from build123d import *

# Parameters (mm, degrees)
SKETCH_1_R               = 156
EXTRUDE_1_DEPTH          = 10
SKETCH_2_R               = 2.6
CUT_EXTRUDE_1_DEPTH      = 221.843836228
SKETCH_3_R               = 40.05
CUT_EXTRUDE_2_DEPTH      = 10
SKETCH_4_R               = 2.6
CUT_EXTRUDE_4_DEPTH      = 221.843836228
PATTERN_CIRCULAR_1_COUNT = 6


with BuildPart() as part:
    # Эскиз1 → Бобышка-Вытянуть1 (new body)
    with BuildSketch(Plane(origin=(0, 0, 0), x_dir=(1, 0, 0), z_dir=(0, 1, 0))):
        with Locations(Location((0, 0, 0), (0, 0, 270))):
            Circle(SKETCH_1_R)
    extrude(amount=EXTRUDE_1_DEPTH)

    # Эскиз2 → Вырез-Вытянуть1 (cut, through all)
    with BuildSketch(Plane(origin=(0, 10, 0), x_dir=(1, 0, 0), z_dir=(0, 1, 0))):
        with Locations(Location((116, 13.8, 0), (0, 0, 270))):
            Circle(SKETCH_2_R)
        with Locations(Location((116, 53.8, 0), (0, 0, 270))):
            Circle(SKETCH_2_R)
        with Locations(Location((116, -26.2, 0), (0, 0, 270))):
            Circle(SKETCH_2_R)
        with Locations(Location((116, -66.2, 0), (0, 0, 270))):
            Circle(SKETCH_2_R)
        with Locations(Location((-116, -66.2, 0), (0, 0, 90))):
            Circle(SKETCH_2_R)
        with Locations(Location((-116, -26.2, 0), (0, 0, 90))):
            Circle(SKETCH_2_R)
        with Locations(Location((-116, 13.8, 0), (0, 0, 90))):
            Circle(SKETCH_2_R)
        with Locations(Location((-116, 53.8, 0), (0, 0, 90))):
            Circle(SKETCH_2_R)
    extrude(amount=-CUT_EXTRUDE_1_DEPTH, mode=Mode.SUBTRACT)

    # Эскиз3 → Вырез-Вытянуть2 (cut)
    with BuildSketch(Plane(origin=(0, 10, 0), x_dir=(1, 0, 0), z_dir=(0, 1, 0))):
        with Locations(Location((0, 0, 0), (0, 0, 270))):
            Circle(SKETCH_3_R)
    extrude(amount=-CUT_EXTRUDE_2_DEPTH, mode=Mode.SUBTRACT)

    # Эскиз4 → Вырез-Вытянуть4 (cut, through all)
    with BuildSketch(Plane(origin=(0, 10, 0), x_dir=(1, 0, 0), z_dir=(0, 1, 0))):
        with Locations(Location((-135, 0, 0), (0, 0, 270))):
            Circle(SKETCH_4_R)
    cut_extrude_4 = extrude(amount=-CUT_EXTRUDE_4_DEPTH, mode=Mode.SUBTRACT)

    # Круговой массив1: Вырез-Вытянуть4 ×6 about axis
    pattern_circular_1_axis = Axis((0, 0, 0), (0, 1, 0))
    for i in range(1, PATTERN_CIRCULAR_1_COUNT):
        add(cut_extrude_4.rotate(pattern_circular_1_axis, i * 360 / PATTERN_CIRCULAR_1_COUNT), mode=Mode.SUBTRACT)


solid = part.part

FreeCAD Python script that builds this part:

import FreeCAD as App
import Part
import Sketcher
from FreeCAD import Vector
Q = App.Units.Quantity

doc = App.newDocument("Part")
body = doc.addObject("PartDesign::Body", "Body")

sketch1 = doc.addObject("Sketcher::SketchObject", "Sketch")
body.addObject(sketch1)
sketch1.AttachmentSupport = (doc.XZ_Plane, [""])
sketch1.MapMode = "FlatFace"
sketch1.addGeometry(Part.Circle(Vector(0, 0, 0), Vector(0, 0, 1), 156), False)
sketch1.addConstraint(Sketcher.Constraint("Coincident", 0, 3, -1, 1))
sketch1.addConstraint(Sketcher.Constraint("Diameter", 0, Q("312 mm")))
pad1 = doc.addObject("PartDesign::Pad", "Pad")
body.addObject(pad1)
pad1.Profile = sketch1
pad1.Length = 10
pad1.Reversed = True

sketch2 = doc.addObject("Sketcher::SketchObject", "Sketch001")
body.addObject(sketch2)
sketch2.AttachmentSupport = (doc.XZ_Plane, [""])
sketch2.MapMode = "FlatFace"
sketch2.AttachmentOffset = App.Placement(Vector(0, 0, -10), App.Rotation())
sketch2.addGeometry(Part.Circle(Vector(116, -13.8, 0), Vector(0, 0, 1), 2.6), False)
sketch2.addGeometry(Part.Circle(Vector(116, -53.8, 0), Vector(0, 0, 1), 2.6), False)
sketch2.addGeometry(Part.Circle(Vector(116, 26.2, 0), Vector(0, 0, 1), 2.6), False)
sketch2.addGeometry(Part.Circle(Vector(116, 66.2, 0), Vector(0, 0, 1), 2.6), False)
sketch2.addGeometry(Part.Circle(Vector(-116, 66.2, 0), Vector(0, 0, 1), 2.6), False)
sketch2.addGeometry(Part.Circle(Vector(-116, 26.2, 0), Vector(0, 0, 1), 2.6), False)
sketch2.addGeometry(Part.Circle(Vector(-116, -13.8, 0), Vector(0, 0, 1), 2.6), False)
sketch2.addGeometry(Part.Circle(Vector(-116, -53.8, 0), Vector(0, 0, 1), 2.6), False)
sketch2.addConstraint(Sketcher.Constraint("Equal", 0, 1))
sketch2.addConstraint(Sketcher.Constraint("Equal", 1, 2))
sketch2.addConstraint(Sketcher.Constraint("Equal", 2, 3))
sketch2.addConstraint(Sketcher.Constraint("Equal", 3, 4))
sketch2.addConstraint(Sketcher.Constraint("Equal", 4, 5))
sketch2.addConstraint(Sketcher.Constraint("Equal", 5, 6))
sketch2.addConstraint(Sketcher.Constraint("Equal", 6, 7))
sketch2.addConstraint(Sketcher.Constraint("Symmetric", 3, 3, 4, 3, -2))
sketch2.addConstraint(Sketcher.Constraint("Symmetric", 2, 3, 5, 3, -2))
sketch2.addConstraint(Sketcher.Constraint("Symmetric", 0, 3, 6, 3, -2))
sketch2.addConstraint(Sketcher.Constraint("Symmetric", 1, 3, 7, 3, -2))
sketch2.addConstraint(Sketcher.Constraint("Vertical", 0, 3, 1, 3))
sketch2.addConstraint(Sketcher.Constraint("Vertical", 1, 3, 2, 3))
sketch2.addConstraint(Sketcher.Constraint("Vertical", 2, 3, 3, 3))
sketch2.addConstraint(Sketcher.Constraint("Diameter", 0, Q("5.2 mm")))
sketch2.addConstraint(Sketcher.Constraint("DistanceX", -1, 1, 0, 3, Q("116 mm")))
sketch2.addConstraint(Sketcher.Constraint("DistanceY", 1, 3, 0, 3, Q("40 mm")))
sketch2.addConstraint(Sketcher.Constraint("DistanceY", 0, 3, 2, 3, Q("40 mm")))
sketch2.addConstraint(Sketcher.Constraint("DistanceY", 2, 3, 3, 3, Q("40 mm")))
sketch2.addConstraint(Sketcher.Constraint("DistanceY", 0, 3, -1, 1, Q("13.8 mm")))
pocket1 = doc.addObject("PartDesign::Pocket", "Pocket")
body.addObject(pocket1)
pocket1.Profile = sketch2
pocket1.Type = "ThroughAll"
pocket1.Reversed = True

sketch3 = doc.addObject("Sketcher::SketchObject", "Sketch002")
body.addObject(sketch3)
sketch3.AttachmentSupport = (doc.XZ_Plane, [""])
sketch3.MapMode = "FlatFace"
sketch3.AttachmentOffset = App.Placement(Vector(0, 0, -10), App.Rotation())
sketch3.addGeometry(Part.Circle(Vector(0, 0, 0), Vector(0, 0, 1), 40), False)
sketch3.addConstraint(Sketcher.Constraint("Coincident", 0, 3, -1, 1))
sketch3.addConstraint(Sketcher.Constraint("Diameter", 0, Q("80.1 mm")))
pocket2 = doc.addObject("PartDesign::Pocket", "Pocket001")
body.addObject(pocket2)
pocket2.Profile = sketch3
pocket2.Length = 10
pocket2.Reversed = True

sketch4 = doc.addObject("Sketcher::SketchObject", "Sketch003")
body.addObject(sketch4)
sketch4.AttachmentSupport = (doc.XZ_Plane, [""])
sketch4.MapMode = "FlatFace"
sketch4.AttachmentOffset = App.Placement(Vector(0, 0, -10), App.Rotation())
sketch4.addGeometry(Part.Circle(Vector(-135, 0, 0), Vector(0, 0, 1), 2.6), False)
sketch4.addConstraint(Sketcher.Constraint("PointOnObject", 0, 3, -1))
sketch4.addConstraint(Sketcher.Constraint("Diameter", 0, Q("5.2 mm")))
sketch4.addConstraint(Sketcher.Constraint("DistanceX", 0, 3, -1, 1, Q("135 mm")))
pocket3 = doc.addObject("PartDesign::Pocket", "Pocket002")
body.addObject(pocket3)
pocket3.Profile = sketch4
pocket3.Type = "ThroughAll"
pocket3.Reversed = True
doc.recompute()

polarpattern = doc.addObject("PartDesign::PolarPattern", "PolarPattern")
body.addObject(polarpattern)
polarpattern.Originals = [pocket3]
polarpattern.Axis = (doc.Y_Axis, [""])
polarpattern.Angle = 360
polarpattern.Occurrences = 6
body.Tip = polarpattern

doc.recompute()
